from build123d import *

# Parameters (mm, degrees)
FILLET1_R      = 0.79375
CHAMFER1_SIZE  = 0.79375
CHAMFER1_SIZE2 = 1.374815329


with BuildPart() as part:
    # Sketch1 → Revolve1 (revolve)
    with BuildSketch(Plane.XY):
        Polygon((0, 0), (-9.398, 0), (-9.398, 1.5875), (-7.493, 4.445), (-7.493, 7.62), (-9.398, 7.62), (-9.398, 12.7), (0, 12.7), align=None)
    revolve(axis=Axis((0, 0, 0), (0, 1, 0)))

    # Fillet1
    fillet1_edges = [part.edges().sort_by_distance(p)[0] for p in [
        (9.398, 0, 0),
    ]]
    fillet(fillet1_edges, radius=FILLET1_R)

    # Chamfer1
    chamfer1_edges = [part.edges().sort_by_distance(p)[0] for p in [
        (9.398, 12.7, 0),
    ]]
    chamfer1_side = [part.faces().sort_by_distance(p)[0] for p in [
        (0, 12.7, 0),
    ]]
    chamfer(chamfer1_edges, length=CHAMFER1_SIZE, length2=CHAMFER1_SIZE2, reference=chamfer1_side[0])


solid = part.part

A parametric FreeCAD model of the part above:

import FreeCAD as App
import Part
import Sketcher
from FreeCAD import Vector
Q = App.Units.Quantity


def edges_at(feature, points):
    """Names of the edges that pass closest to the given points."""
    edges = feature.Shape.Edges
    near = lambda p: min(range(len(edges)), key=lambda i: edges[i].distToShape(Part.Vertex(*p))[0])
    return sorted({f"Edge{near(p) + 1}" for p in points})


def add_polygon(sketch, points):
    """Adds a closed chain of lines whose ends are joined by coincident constraints."""
    first, n = sketch.GeometryCount, len(points)
    for a, b in zip(points, points[1:] + points[:1]):
        sketch.addGeometry(Part.LineSegment(App.Vector(*a, 0), App.Vector(*b, 0)), False)
    for i in range(n):
        sketch.addConstraint(Sketcher.Constraint("Coincident", first + i, 2, first + (i + 1) % n, 1))

doc = App.newDocument("Part")
body = doc.addObject("PartDesign::Body", "Body")

# Sketch on XY plane
sketch1 = body.newObject("Sketcher::SketchObject", "Sketch")
sketch1.AttachmentSupport = (doc.getObject("XY_Plane"), [""])
sketch1.MapMode = "FlatFace"
add_polygon(sketch1, [(-9.398, 0), (0, 0), (0, 12.7), (-9.398, 12.7), (-9.398, 7.62), (-7.493, 7.62), (-7.493, 4.445), (-9.398, 1.5875)])  # lines 0-7
sketch1.addConstraint(Sketcher.Constraint("Horizontal", 0))
sketch1.addConstraint(Sketcher.Constraint("Vertical", 1))
sketch1.addConstraint(Sketcher.Constraint("Horizontal", 2))
sketch1.addConstraint(Sketcher.Constraint("Vertical", 3))
sketch1.addConstraint(Sketcher.Constraint("Horizontal", 4))
sketch1.addConstraint(Sketcher.Constraint("Vertical", 5))
sketch1.addConstraint(Sketcher.Constraint("Vertical", 7))
sketch1.addConstraint(Sketcher.Constraint("Coincident", 0, 2, -1, 1))
sketch1.addConstraint(Sketcher.Constraint("Vertical", 3, 2, 6, 2))
sketch1.addConstraint(Sketcher.Constraint("DistanceY", 1, 1, 1, 2, Q("0.5 in")))
sketch1.addConstraint(Sketcher.Constraint("DistanceY", 3, 2, 3, 1, Q("0.2 in")))
sketch1.addConstraint(Sketcher.Constraint("DistanceX", 0, 1, 0, 2, Q("0.37 in")))
sketch1.addConstraint(Sketcher.Constraint("DistanceX", 4, 1, 4, 2, Q("0.075 in")))
sketch1.addConstraint(Sketcher.Constraint("DistanceY", 5, 2, 5, 1, Q("0.125 in")))
sketch1.addConstraint(Sketcher.Constraint("DistanceY", 7, 2, 7, 1, Q("0.0625 in")))
revolution = body.newObject("PartDesign::Revolution", "Revolution")
revolution.Profile = sketch1
revolution.ReferenceAxis = (sketch1, ["V_Axis"])
revolution.Angle = 360
doc.recompute()

fillet = body.newObject("PartDesign::Fillet", "Fillet")
fillet.Base = (revolution, edges_at(revolution, [(9.398, 0, 0)]))
fillet.Radius = Q("0.03125 in")
doc.recompute()

chamfer = body.newObject("PartDesign::Chamfer", "Chamfer")
chamfer.Base = (fillet, edges_at(fillet, [(9.398, 12.7, 0)]))
chamfer.ChamferType = "Two distances"
chamfer.Size = Q("0.03125 in")
chamfer.Size2 = 1.374815
chamfer.FlipDirection = True

doc.recompute()
